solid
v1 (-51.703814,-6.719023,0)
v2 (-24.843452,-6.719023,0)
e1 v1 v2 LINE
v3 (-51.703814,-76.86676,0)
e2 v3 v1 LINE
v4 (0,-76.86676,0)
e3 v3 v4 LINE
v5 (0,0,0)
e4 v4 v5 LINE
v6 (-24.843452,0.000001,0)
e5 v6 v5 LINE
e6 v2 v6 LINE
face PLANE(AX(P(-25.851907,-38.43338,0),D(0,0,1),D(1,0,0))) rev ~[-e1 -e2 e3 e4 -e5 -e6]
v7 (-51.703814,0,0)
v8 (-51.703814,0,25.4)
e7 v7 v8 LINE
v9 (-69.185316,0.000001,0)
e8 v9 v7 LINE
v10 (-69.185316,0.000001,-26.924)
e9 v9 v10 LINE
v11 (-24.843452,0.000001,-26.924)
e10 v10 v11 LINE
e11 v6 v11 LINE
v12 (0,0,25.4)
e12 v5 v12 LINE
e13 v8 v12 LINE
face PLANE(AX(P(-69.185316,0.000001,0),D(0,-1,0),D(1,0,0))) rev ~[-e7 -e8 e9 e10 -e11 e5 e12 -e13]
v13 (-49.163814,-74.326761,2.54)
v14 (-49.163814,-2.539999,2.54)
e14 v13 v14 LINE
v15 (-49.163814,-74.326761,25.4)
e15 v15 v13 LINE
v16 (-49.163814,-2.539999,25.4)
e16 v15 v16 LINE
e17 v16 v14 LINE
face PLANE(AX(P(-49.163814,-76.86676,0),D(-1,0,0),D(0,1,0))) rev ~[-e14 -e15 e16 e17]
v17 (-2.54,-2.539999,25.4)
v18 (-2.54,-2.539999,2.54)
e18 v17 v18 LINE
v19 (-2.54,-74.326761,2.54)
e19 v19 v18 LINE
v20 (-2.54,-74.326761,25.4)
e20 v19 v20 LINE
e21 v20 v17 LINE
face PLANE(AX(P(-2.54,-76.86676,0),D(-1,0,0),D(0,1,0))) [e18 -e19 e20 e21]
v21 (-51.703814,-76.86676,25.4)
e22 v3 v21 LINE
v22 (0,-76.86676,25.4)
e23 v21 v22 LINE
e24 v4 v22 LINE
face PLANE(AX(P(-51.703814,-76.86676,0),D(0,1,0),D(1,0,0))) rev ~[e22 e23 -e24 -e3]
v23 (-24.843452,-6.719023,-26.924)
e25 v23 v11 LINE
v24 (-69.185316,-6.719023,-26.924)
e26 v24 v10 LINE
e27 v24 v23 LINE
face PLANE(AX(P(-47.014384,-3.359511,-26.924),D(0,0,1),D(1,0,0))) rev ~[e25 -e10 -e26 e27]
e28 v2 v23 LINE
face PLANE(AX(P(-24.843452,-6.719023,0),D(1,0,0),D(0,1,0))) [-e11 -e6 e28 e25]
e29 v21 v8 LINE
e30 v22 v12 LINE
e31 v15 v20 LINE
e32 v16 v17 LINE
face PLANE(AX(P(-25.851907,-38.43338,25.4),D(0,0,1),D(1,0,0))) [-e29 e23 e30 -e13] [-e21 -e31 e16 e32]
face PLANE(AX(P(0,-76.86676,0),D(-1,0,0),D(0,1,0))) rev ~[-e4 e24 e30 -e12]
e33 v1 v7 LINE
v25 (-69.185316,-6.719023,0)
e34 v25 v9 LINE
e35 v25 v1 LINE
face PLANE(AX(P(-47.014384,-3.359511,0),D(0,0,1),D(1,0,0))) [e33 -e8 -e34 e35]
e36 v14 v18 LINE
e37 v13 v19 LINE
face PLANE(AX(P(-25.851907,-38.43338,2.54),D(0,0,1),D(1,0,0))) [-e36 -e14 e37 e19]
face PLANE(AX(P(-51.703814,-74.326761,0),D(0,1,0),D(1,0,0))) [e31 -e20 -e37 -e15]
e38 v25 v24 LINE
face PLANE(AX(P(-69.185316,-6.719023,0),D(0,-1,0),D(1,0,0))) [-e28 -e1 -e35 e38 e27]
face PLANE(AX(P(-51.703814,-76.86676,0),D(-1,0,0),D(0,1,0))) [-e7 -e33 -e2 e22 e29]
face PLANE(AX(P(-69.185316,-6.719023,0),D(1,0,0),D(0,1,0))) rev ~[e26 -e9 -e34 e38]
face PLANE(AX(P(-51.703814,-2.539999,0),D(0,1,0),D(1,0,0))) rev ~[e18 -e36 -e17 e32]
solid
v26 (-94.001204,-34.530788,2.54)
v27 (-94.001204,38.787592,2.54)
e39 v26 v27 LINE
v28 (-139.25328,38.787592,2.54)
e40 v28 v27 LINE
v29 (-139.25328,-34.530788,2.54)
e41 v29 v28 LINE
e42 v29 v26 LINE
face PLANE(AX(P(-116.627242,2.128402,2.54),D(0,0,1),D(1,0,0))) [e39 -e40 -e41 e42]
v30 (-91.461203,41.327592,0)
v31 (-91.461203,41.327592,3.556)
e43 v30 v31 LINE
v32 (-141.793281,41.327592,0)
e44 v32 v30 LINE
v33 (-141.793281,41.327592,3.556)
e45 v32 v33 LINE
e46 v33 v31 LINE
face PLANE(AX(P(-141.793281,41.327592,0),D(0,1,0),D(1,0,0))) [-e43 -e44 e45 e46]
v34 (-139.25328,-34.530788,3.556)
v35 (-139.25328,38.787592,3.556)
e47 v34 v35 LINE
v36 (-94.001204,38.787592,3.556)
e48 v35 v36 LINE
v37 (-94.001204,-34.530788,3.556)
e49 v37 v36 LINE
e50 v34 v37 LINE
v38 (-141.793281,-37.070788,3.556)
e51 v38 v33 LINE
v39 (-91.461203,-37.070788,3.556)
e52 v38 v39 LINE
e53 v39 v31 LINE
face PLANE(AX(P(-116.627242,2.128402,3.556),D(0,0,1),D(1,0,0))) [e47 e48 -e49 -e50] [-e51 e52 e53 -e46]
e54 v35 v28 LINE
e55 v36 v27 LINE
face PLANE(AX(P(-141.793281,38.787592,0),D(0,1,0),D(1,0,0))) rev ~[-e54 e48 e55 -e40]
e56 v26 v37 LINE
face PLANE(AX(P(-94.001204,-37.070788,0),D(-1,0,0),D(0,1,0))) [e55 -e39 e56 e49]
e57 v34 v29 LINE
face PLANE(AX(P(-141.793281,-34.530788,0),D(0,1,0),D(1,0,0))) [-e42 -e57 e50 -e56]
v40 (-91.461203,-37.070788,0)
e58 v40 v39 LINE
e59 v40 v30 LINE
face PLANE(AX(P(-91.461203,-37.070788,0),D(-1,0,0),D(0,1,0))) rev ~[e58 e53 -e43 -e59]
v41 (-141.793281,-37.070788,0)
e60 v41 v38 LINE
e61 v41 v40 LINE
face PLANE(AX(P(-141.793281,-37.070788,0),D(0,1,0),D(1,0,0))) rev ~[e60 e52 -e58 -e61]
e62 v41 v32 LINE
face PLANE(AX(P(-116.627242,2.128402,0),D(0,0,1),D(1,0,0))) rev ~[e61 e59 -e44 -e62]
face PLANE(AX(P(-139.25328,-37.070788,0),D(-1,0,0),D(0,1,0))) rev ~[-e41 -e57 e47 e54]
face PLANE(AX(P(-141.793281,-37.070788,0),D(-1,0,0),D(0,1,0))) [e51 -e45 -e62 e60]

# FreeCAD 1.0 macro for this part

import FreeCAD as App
import Part
import Sketcher
from FreeCAD import Vector
Q = App.Units.Quantity


def faces_at(feature, points):
    """Names of the faces that lie closest to the given points."""
    faces = feature.Shape.Faces
    near = lambda p: min(range(len(faces)), key=lambda i: faces[i].distToShape(Part.Vertex(*p))[0])
    return sorted({f"Face{near(p) + 1}" for p in points})


def add_polygon(sketch, points):
    """Adds a closed chain of lines whose ends are joined by coincident constraints."""
    first, n = sketch.GeometryCount, len(points)
    for a, b in zip(points, points[1:] + points[:1]):
        sketch.addGeometry(Part.LineSegment(App.Vector(*a, 0), App.Vector(*b, 0)), False)
    for i in range(n):
        sketch.addConstraint(Sketcher.Constraint("Coincident", first + i, 2, first + (i + 1) % n, 1))

doc = App.newDocument("Part")
body = doc.addObject("PartDesign::Body", "Body")

# Sketch on XY plane
sketch1 = doc.addObject("Sketcher::SketchObject", "Sketch")
body.addObject(sketch1)
sketch1.AttachmentSupport = (doc.XY_Plane, [""])
sketch1.MapMode = "FlatFace"
add_polygon(sketch1, [(-52, 0), (-52, -77), (0, -77), (0, 0)])  # lines 0-3
sketch1.addConstraint(Sketcher.Constraint("Vertical", 0))
sketch1.addConstraint(Sketcher.Constraint("Horizontal", 1))
sketch1.addConstraint(Sketcher.Constraint("Vertical", 2))
sketch1.addConstraint(Sketcher.Constraint("Horizontal", 3))
sketch1.addConstraint(Sketcher.Constraint("Coincident", 2, 2, -1, 1))
sketch1.addConstraint(Sketcher.Constraint("DistanceY", 0, 2, 0, 1, Q("76.866761 mm")))
sketch1.addConstraint(Sketcher.Constraint("DistanceX", 1, 1, 1, 2, Q("51.703814 mm")))
pad1 = doc.addObject("PartDesign::Pad", "Pad")
body.addObject(pad1)
pad1.Profile = sketch1
pad1.Length = Q("1 in")
doc.recompute()

thickness = doc.addObject("PartDesign::Thickness", "Thickness")
body.addObject(thickness)
thickness.Base = (pad1, faces_at(pad1, [(-25.852, -38.433, 25.4)]))
thickness.Value = Q("0.1 in")
thickness.Reversed = True
thickness.Join = "Arc"

# Sketch on XY plane
sketch2 = doc.addObject("Sketcher::SketchObject", "Sketch001")
body.addObject(sketch2)
sketch2.AttachmentSupport = (doc.XY_Plane, [""])
sketch2.MapMode = "FlatFace"
add_polygon(sketch2, [(-69, 0), (-69, -7), (-25, -7), (-25, 0)])  # lines 0-3
sketch2.addConstraint(Sketcher.Constraint("Vertical", 0))
sketch2.addConstraint(Sketcher.Constraint("Horizontal", 1))
sketch2.addConstraint(Sketcher.Constraint("Vertical", 2))
sketch2.addConstraint(Sketcher.Constraint("Horizontal", 3))
sketch2.addConstraint(Sketcher.Constraint("PointOnObject", 2, 2, -1))
sketch2.addConstraint(Sketcher.Constraint("DistanceX", 1, 1, 1, 2, Q("44.341865 mm")))
sketch2.addConstraint(Sketcher.Constraint("DistanceY", 0, 2, 0, 1, Q("6.719023 mm")))
sketch2.addConstraint(Sketcher.Constraint("DistanceX", 1, 2, -1, 1, Q("24.843452 mm")))
pad2 = doc.addObject("PartDesign::Pad", "Pad001")
body.addObject(pad2)
pad2.Profile = sketch2
pad2.Length = Q("1.06 in")
pad2.Reversed = True
body2 = doc.addObject("PartDesign::Body", "Body001")

# Sketch on XY plane
sketch3 = doc.addObject("Sketcher::SketchObject", "Sketch002")
body2.addObject(sketch3)
sketch3.AttachmentSupport = (doc.getObject("XY_Plane001"), [""])
sketch3.MapMode = "FlatFace"
add_polygon(sketch3, [(-142, 41), (-142, -37), (-91, -37), (-91, 41)])  # lines 0-3
sketch3.addConstraint(Sketcher.Constraint("Vertical", 0))
sketch3.addConstraint(Sketcher.Constraint("Horizontal", 1))
sketch3.addConstraint(Sketcher.Constraint("Vertical", 2))
sketch3.addConstraint(Sketcher.Constraint("Horizontal", 3))
sketch3.addConstraint(Sketcher.Constraint("DistanceY", 0, 2, 0, 1, Q("78.39838 mm")))
sketch3.addConstraint(Sketcher.Constraint("DistanceX", 1, 1, 1, 2, Q("50.332077 mm")))
sketch3.addConstraint(Sketcher.Constraint("DistanceX", 0, 2, -1, 1, Q("141.793281 mm")))
sketch3.addConstraint(Sketcher.Constraint("DistanceY", 0, 2, -1, 1, Q("37.070788 mm")))
pad3 = doc.addObject("PartDesign::Pad", "Pad002")
body2.addObject(pad3)
pad3.Profile = sketch3
pad3.Length = Q("0.14 in")
doc.recompute()

thickness2 = doc.addObject("PartDesign::Thickness", "Thickness001")
body2.addObject(thickness2)
thickness2.Base = (pad3, faces_at(pad3, [(-116.627, 2.128, 3.556)]))
thickness2.Value = Q("0.1 in")
thickness2.Reversed = True
thickness2.Join = "Arc"

doc.recompute()
